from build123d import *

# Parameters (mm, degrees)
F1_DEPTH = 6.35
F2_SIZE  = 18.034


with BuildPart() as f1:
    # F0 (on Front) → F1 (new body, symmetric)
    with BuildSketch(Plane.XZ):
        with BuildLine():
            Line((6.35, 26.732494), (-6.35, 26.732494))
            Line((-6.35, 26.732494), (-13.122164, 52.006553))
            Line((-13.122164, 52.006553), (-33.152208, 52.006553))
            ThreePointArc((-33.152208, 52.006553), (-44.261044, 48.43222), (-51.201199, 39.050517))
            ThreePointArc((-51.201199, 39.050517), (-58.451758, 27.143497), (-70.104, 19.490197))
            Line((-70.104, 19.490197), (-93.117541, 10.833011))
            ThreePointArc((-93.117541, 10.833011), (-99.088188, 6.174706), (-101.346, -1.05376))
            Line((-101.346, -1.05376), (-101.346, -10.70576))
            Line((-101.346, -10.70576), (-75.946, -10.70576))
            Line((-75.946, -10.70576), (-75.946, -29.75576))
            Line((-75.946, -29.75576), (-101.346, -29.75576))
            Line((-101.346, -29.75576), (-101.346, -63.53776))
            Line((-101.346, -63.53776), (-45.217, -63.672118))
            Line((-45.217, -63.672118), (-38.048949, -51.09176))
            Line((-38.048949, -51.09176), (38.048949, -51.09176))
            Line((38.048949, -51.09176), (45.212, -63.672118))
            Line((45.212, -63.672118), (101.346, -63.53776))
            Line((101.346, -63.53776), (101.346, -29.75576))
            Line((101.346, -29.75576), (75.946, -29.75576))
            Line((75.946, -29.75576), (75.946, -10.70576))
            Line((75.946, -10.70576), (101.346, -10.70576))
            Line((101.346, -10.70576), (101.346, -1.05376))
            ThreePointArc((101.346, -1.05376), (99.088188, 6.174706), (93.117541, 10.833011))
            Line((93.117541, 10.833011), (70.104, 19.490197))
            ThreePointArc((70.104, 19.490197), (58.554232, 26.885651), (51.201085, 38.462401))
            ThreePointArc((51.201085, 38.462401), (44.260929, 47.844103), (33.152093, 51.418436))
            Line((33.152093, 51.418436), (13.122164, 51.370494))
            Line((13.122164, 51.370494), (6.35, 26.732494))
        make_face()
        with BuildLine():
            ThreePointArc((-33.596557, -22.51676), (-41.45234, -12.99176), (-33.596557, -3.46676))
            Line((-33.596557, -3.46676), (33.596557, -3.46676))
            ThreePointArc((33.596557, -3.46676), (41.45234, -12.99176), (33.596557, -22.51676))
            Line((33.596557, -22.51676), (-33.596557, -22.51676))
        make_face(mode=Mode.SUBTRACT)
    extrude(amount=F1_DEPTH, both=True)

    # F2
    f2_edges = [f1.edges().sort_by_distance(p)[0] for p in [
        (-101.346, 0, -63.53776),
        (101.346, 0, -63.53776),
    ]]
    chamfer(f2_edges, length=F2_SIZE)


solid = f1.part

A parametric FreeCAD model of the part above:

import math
import FreeCAD as App
import Part
import Sketcher
from FreeCAD import Vector
Q = App.Units.Quantity


def edges_at(feature, points):
    """Names of the edges that pass closest to the given points."""
    edges = feature.Shape.Edges
    near = lambda p: min(range(len(edges)), key=lambda i: edges[i].distToShape(Part.Vertex(*p))[0])
    return sorted({f"Edge{near(p) + 1}" for p in points})

doc = App.newDocument("Part")
body = doc.addObject("PartDesign::Body", "Body")

# Sketch on XZ plane
sketch1 = doc.addObject("Sketcher::SketchObject", "Sketch")
body.addObject(sketch1)
sketch1.AttachmentSupport = (doc.XZ_Plane, [""])
sketch1.MapMode = "FlatFace"
sketch1.addGeometry([
    Part.LineSegment(Vector(6.35, 26.732494, 0), Vector(-6.35, 26.732494, 0)),  # 0
    Part.LineSegment(Vector(-6.35, 26.732494, 0), Vector(-13.122164, 52.006553, 0)),  # 1
    Part.LineSegment(Vector(-13.122164, 52.006553, 0), Vector(-33.152208, 52.006553, 0)),  # 2
    Part.ArcOfCircle(Part.Circle(Vector(-33.152209, 32.956556, 0), Vector(0, 0, 1), 19.049997), math.radians(89.999997), math.radians(161.343544)),  # 3
    Part.ArcOfCircle(Part.Circle(Vector(-81.282853, 49.207125, 0), Vector(0, 0, 1), 31.750001), math.radians(-69.384808), math.radians(-18.656464)),  # 4
    Part.LineSegment(Vector(-70.104, 19.490197, 0), Vector(-93.117541, 10.833011, 0)),  # 5
    Part.ArcOfCircle(Part.Circle(Vector(-88.646002, -1.053759, 0), Vector(0, 0, 1), 12.699998), math.radians(110.615188), math.radians(180.000006)),  # 6
    Part.LineSegment(Vector(-101.346, -1.05376, 0), Vector(-101.346, -10.70576, 0)),  # 7
    Part.LineSegment(Vector(-101.346, -10.70576, 0), Vector(-75.946, -10.70576, 0)),  # 8
    Part.LineSegment(Vector(-75.946, -10.70576, 0), Vector(-75.946, -29.75576, 0)),  # 9
    Part.LineSegment(Vector(-75.946, -29.75576, 0), Vector(-101.346, -29.75576, 0)),  # 10
    Part.LineSegment(Vector(-101.346, -29.75576, 0), Vector(-101.346, -63.53776, 0)),  # 11
    Part.LineSegment(Vector(-101.346, -63.53776, 0), Vector(-45.217, -63.672118, 0)),  # 12
    Part.LineSegment(Vector(-45.217, -63.672118, 0), Vector(-38.048949, -51.09176, 0)),  # 13
    Part.LineSegment(Vector(-38.048949, -51.09176, 0), Vector(38.048949, -51.09176, 0)),  # 14
    Part.LineSegment(Vector(38.048949, -51.09176, 0), Vector(45.212, -63.672118, 0)),  # 15
    Part.LineSegment(Vector(45.212, -63.672118, 0), Vector(101.346, -63.53776, 0)),  # 16
    Part.LineSegment(Vector(101.346, -63.53776, 0), Vector(101.346, -29.75576, 0)),  # 17
    Part.LineSegment(Vector(101.346, -29.75576, 0), Vector(75.946, -29.75576, 0)),  # 18
    Part.LineSegment(Vector(75.946, -29.75576, 0), Vector(75.946, -10.70576, 0)),  # 19
    Part.LineSegment(Vector(75.946, -10.70576, 0), Vector(101.346, -10.70576, 0)),  # 20
    Part.LineSegment(Vector(101.346, -10.70576, 0), Vector(101.346, -1.05376, 0)),  # 21
    Part.ArcOfCircle(Part.Circle(Vector(88.646002, -1.053759, 0), Vector(0, 0, 1), 12.699998), math.radians(-0.000006), math.radians(69.384812)),  # 22
    Part.LineSegment(Vector(93.117541, 10.833011, 0), Vector(70.104, 19.490197, 0)),  # 23
    Part.ArcOfCircle(Part.Circle(Vector(81.045903, 49.295181, 0), Vector(0, 0, 1), 31.749997), math.radians(-160.050612), math.radians(-110.159023)),  # 24
    Part.ArcOfCircle(Part.Circle(Vector(33.152093, 32.368435, 0), Vector(0, 0, 1), 19.050001), math.radians(18.656466), math.radians(90)),  # 25
    Part.LineSegment(Vector(33.152093, 51.418436, 0), Vector(13.122164, 51.370494, 0)),  # 26
    Part.LineSegment(Vector(13.122164, 51.370494, 0), Vector(6.35, 26.732494, 0)),  # 27
    Part.LineSegment(Vector(33.596557, -22.51676, 0), Vector(-33.596557, -22.51676, 0)),  # 28
    Part.ArcOfCircle(Part.Circle(Vector(-31.75, -12.99176, 0), Vector(0, 0, 1), 9.70234), math.radians(100.971504), math.radians(259.028496)),  # 29
    Part.LineSegment(Vector(-33.596557, -3.46676, 0), Vector(33.596557, -3.46676, 0)),  # 30
    Part.ArcOfCircle(Part.Circle(Vector(31.75, -12.99176, 0), Vector(0, 0, 1), 9.70234), math.radians(-79.028496), math.radians(79.028496)),  # 31
], False)
sketch1.addConstraint([
    Sketcher.Constraint("Coincident", 0, 2, 1, 1),
    Sketcher.Constraint("Coincident", 1, 2, 2, 1),
    Sketcher.Constraint("Coincident", 2, 2, 3, 1),
    Sketcher.Constraint("Coincident", 3, 2, 4, 2),
    Sketcher.Constraint("Coincident", 4, 1, 5, 1),
    Sketcher.Constraint("Coincident", 5, 2, 6, 1),
    Sketcher.Constraint("Coincident", 6, 2, 7, 1),
    Sketcher.Constraint("Coincident", 7, 2, 8, 1),
    Sketcher.Constraint("Coincident", 8, 2, 9, 1),
    Sketcher.Constraint("Coincident", 9, 2, 10, 1),
    Sketcher.Constraint("Coincident", 10, 2, 11, 1),
    Sketcher.Constraint("Coincident", 11, 2, 12, 1),
    Sketcher.Constraint("Coincident", 12, 2, 13, 1),
    Sketcher.Constraint("Coincident", 13, 2, 14, 1),
    Sketcher.Constraint("Coincident", 14, 2, 15, 1),
    Sketcher.Constraint("Coincident", 15, 2, 16, 1),
    Sketcher.Constraint("Coincident", 16, 2, 17, 1),
    Sketcher.Constraint("Coincident", 17, 2, 18, 1),
    Sketcher.Constraint("Coincident", 18, 2, 19, 1),
    Sketcher.Constraint("Coincident", 19, 2, 20, 1),
    Sketcher.Constraint("Coincident", 20, 2, 21, 1),
    Sketcher.Constraint("Coincident", 21, 2, 22, 1),
    Sketcher.Constraint("Coincident", 22, 2, 23, 1),
    Sketcher.Constraint("Coincident", 23, 2, 24, 2),
    Sketcher.Constraint("Coincident", 24, 1, 25, 1),
    Sketcher.Constraint("Coincident", 25, 2, 26, 1),
    Sketcher.Constraint("Coincident", 26, 2, 27, 1),
    Sketcher.Constraint("Coincident", 27, 2, 0, 1),
    Sketcher.Constraint("Coincident", 28, 2, 29, 2),
    Sketcher.Constraint("Coincident", 29, 1, 30, 1),
    Sketcher.Constraint("Coincident", 30, 2, 31, 2),
    Sketcher.Constraint("Coincident", 31, 1, 28, 1),
    Sketcher.Constraint("Horizontal", 0),
    Sketcher.Constraint("Horizontal", 2),
    Sketcher.Constraint("Vertical", 7),
    Sketcher.Constraint("Horizontal", 8),
    Sketcher.Constraint("Vertical", 9),
    Sketcher.Constraint("Horizontal", 10),
    Sketcher.Constraint("Vertical", 11),
    Sketcher.Constraint("Horizontal", 14),
    Sketcher.Constraint("Vertical", 17),
    Sketcher.Constraint("Horizontal", 18),
    Sketcher.Constraint("Vertical", 19),
    Sketcher.Constraint("Horizontal", 20),
    Sketcher.Constraint("Vertical", 21),
    Sketcher.Constraint("Horizontal", 28),
    Sketcher.Constraint("Horizontal", 30),
    Sketcher.Constraint("Radius", 6, Q("0.4999999 in")),
    Sketcher.Constraint("Radius", 22, Q("0.4999999 in")),
    Sketcher.Constraint("DistanceX", 8, 1, 8, 2, Q("1 in")),
    Sketcher.Constraint("DistanceX", 10, 2, 10, 1, Q("1 in")),
    Sketcher.Constraint("DistanceX", 18, 2, 18, 1, Q("1 in")),
    Sketcher.Constraint("DistanceX", 20, 1, 20, 2, Q("1 in")),
    Sketcher.Constraint("Radius", 3, Q("0.7499999 in")),
    Sketcher.Constraint("Radius", 4, Q("1.25 in")),
    Sketcher.Constraint("Radius", 24, Q("1.2499999 in")),
    Sketcher.Constraint("Radius", 25, Q("0.75 in")),
    Sketcher.Constraint("DistanceX", 0, 2, 0, 1, Q("0.5 in")),
    Sketcher.Constraint("DistanceX", 29, 3, 0, 2, Q("1 in")),
    Sketcher.Constraint("DistanceY", 7, 2, 7, 1, Q("0.38 in")),
    Sketcher.Constraint("DistanceY", 9, 2, 9, 1, Q("0.75 in")),
    Sketcher.Constraint("DistanceY", 11, 2, 11, 1, Q("1.33 in")),
    Sketcher.Constraint("DistanceY", 17, 1, 17, 2, Q("1.33 in")),
    Sketcher.Constraint("DistanceY", 19, 1, 19, 2, Q("0.75 in")),
    Sketcher.Constraint("DistanceY", 21, 1, 21, 2, Q("0.38 in")),
    Sketcher.Constraint("DistanceX", 29, 3, 31, 3, Q("2.5 in")),
    Sketcher.Constraint("DistanceY", 13, 2, 29, 3, Q("1.5 in")),
    Sketcher.Constraint("DistanceY", 14, 2, 31, 3, Q("1.5 in")),
    Sketcher.Constraint("DistanceX", 6, 3, -1, 1, Q("3.4900001 in")),
    Sketcher.Constraint("DistanceX", -1, 1, 22, 3, Q("3.4900001 in")),
    Sketcher.Constraint("DistanceX", 29, 3, -1, 1, Q("1.25 in")),
    Sketcher.Constraint("DistanceX", 4, 1, -1, 1, Q("2.76 in")),
    Sketcher.Constraint("DistanceX", -1, 1, 15, 2, Q("1.78 in")),
    Sketcher.Constraint("DistanceX", -1, 1, 23, 2, Q("2.76 in")),
    Sketcher.Constraint("DistanceY", 29, 3, 6, 3, Q("0.47 in")),
    Sketcher.Constraint("DistanceY", 29, 3, 22, 3, Q("0.47 in")),
    Sketcher.Constraint("DistanceY", 7, 2, 6, 3, Q("0.38 in")),
    Sketcher.Constraint("DistanceY", 16, 2, 22, 3, Q("2.46 in")),
    Sketcher.Constraint("DistanceY", 0, 2, 26, 2, Q("0.97 in")),
    Sketcher.Constraint("DistanceY", 28, 2, 29, 1, Q("0.75 in")),
    Sketcher.Constraint("Radius", 29, Q("9.70234 mm")),
    Sketcher.Constraint("Radius", 31, Q("9.70234 mm")),
    Sketcher.Constraint("DistanceY", 28, 2, 29, 3, Q("0.375 in")),
    Sketcher.Constraint("DistanceX", 14, 1, 14, 2, Q("76.097898 mm")),
    Sketcher.Constraint("DistanceX", 3, 2, -1, 1, Q("51.201199 mm")),
    Sketcher.Constraint("DistanceX", 12, 2, -1, 1, Q("45.217 mm")),
    Sketcher.Constraint("DistanceY", -1, 1, 24, 1, Q("38.462401 mm")),
    Sketcher.Constraint("DistanceX", 24, 3, 22, 3, Q("7.600098 mm")),
    Sketcher.Constraint("Distance", 1, Q("26.165631 mm")),
    Sketcher.Constraint("Distance", 13, Q("14.47917 mm")),
    Sketcher.Constraint("DistanceX", 2, 2, 2, 1, Q("20.030044 mm")),
    Sketcher.Constraint("DistanceX", 3, 3, -1, 1, Q("33.152209 mm")),
    Sketcher.Constraint("DistanceY", 6, 3, -1, 1, Q("1.053759 mm")),
    Sketcher.Constraint("DistanceY", -1, 1, 24, 3, Q("49.295181 mm")),
    Sketcher.Constraint("DistanceX", 2, 2, -1, 1, Q("33.152208 mm")),
    Sketcher.Constraint("DistanceX", 5, 2, -1, 1, Q("93.117541 mm")),
    Sketcher.Constraint("DistanceX", 13, 2, -1, 1, Q("38.048949 mm")),
    Sketcher.Constraint("DistanceX", -1, 1, 22, 2, Q("93.117541 mm")),
    Sketcher.Constraint("DistanceY", 3, 3, 4, 3, Q("16.25057 mm")),
    Sketcher.Constraint("DistanceX", 25, 3, 24, 3, Q("47.89381 mm")),
    Sketcher.Constraint("DistanceY", 25, 3, 3, 3, Q("0.58812 mm")),
    Sketcher.Constraint("DistanceY", 15, 2, 22, 3, Q("62.618359 mm")),
    Sketcher.Constraint("DistanceX", 25, 2, 24, 1, Q("18.048992 mm")),
    Sketcher.Constraint("DistanceX", 26, 2, 25, 2, Q("20.029929 mm")),
])
pad1 = doc.addObject("PartDesign::Pad", "Pad")
body.addObject(pad1)
pad1.Profile = sketch1
pad1.Length = Q("0.5 in")
pad1.Midplane = True
doc.recompute()

chamfer = doc.addObject("PartDesign::Chamfer", "Chamfer")
body.addObject(chamfer)
chamfer.Base = (pad1, edges_at(pad1, [(-101.346, 0, -63.538), (101.346, 0, -63.538)]))
chamfer.Size = Q("0.71 in")

doc.recompute()
